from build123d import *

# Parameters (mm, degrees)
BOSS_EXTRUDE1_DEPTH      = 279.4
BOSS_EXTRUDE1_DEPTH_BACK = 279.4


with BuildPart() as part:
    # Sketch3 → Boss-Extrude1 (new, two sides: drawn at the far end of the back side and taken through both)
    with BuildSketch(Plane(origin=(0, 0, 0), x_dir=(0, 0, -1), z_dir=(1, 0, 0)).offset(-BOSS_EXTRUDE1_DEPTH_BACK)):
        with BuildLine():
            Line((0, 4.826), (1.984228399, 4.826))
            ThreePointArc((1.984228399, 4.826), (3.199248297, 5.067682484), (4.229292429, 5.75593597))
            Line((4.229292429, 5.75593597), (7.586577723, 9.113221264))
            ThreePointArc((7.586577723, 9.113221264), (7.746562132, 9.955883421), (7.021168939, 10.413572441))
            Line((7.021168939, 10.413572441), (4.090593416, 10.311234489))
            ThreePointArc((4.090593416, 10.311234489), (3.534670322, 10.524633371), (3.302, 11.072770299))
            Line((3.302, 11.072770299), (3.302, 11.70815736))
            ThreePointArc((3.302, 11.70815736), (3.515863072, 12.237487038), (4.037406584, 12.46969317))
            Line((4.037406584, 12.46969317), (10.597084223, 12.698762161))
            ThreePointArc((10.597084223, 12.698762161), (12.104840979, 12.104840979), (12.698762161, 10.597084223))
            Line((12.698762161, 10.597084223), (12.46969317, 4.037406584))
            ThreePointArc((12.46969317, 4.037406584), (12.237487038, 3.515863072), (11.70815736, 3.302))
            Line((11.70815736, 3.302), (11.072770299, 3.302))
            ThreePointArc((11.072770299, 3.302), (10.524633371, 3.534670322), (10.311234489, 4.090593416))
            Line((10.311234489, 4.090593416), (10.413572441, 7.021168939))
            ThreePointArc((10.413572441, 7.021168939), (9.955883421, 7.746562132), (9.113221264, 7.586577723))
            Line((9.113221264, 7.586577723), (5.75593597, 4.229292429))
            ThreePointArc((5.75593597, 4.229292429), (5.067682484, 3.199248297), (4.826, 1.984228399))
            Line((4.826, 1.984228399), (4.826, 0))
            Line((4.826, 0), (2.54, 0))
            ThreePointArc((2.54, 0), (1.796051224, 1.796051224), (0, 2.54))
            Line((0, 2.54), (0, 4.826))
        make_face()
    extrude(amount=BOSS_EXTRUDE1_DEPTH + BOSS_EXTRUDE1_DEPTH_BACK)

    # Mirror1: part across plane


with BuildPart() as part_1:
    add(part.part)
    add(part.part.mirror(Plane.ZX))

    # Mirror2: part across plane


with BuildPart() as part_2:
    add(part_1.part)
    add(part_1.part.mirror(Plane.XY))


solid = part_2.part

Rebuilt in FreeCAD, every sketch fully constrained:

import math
import FreeCAD as App
import Part
import Sketcher

V = App.Vector
Q = App.Units.Quantity

doc = App.newDocument("Part")
body = doc.addObject("PartDesign::Body", "Body")

# Sketch on YZ plane
sketch1 = body.newObject("Sketcher::SketchObject", "Sketch")
sketch1.AttachmentSupport = (doc.getObject("YZ_Plane"), [""])
sketch1.MapMode = "FlatFace"
sketch1.addGeometry(Part.LineSegment(V(4.8, -2, 0), V(4.8, 0, 0)), False)
sketch1.addGeometry(Part.LineSegment(V(4.8, 0, 0), V(2.5, 0, 0)), False)
sketch1.addGeometry(Part.ArcOfCircle(Part.Circle(V(0, 0, 0), V(0, 0, 1), 2.5), math.radians(-90), math.radians(0)), False)
sketch1.addGeometry(Part.LineSegment(V(0, -2.5, 0), V(0, -4.8, 0)), False)
sketch1.addGeometry(Part.LineSegment(V(0, -4.8, 0), V(2, -4.8, 0)), False)
sketch1.addGeometry(Part.ArcOfCircle(Part.Circle(V(2, -8, 0), V(0, 0, 1), 3.2), math.radians(45), math.radians(90)), False)
sketch1.addGeometry(Part.LineSegment(V(4.2, -5.8, 0), V(7.6, -9.1, 0)), False)
sketch1.addGeometry(Part.ArcOfCircle(Part.Circle(V(7, -9.7, 0), V(0, 0, 1), 0.8), math.radians(-92), math.radians(45)), False)
sketch1.addGeometry(Part.LineSegment(V(7, -10.4, 0), V(4.1, -10.3, 0)), False)
sketch1.addGeometry(Part.ArcOfCircle(Part.Circle(V(4.1, -11.1, 0), V(0, 0, 1), 0.8), math.radians(88), math.radians(180)), False)
sketch1.addGeometry(Part.LineSegment(V(3.3, -11.1, 0), V(3.3, -11.7, 0)), False)
sketch1.addGeometry(Part.ArcOfCircle(Part.Circle(V(4.1, -11.7, 0), V(0, 0, 1), 0.8), math.radians(180), math.radians(268)), False)
sketch1.addGeometry(Part.LineSegment(V(4, -12.5, 0), V(10.6, -12.7, 0)), False)
sketch1.addGeometry(Part.ArcOfCircle(Part.Circle(V(10.7, -10.7, 0), V(0, 0, 1), 2), math.radians(-92), math.radians(2)), False)
sketch1.addGeometry(Part.LineSegment(V(12.7, -10.6, 0), V(12.5, -4, 0)), False)
sketch1.addGeometry(Part.ArcOfCircle(Part.Circle(V(11.7, -4.1, 0), V(0, 0, 1), 0.8), math.radians(2), math.radians(90)), False)
sketch1.addGeometry(Part.LineSegment(V(11.7, -3.3, 0), V(11.1, -3.3, 0)), False)
sketch1.addGeometry(Part.ArcOfCircle(Part.Circle(V(11.1, -4.1, 0), V(0, 0, 1), 0.8), math.radians(90), math.radians(182)), False)
sketch1.addGeometry(Part.LineSegment(V(10.3, -4.1, 0), V(10.4, -7, 0)), False)
sketch1.addGeometry(Part.ArcOfCircle(Part.Circle(V(9.7, -7, 0), V(0, 0, 1), 0.8), math.radians(-135), math.radians(2)), False)
sketch1.addGeometry(Part.LineSegment(V(9.1, -7.6, 0), V(5.8, -4.2, 0)), False)
sketch1.addGeometry(Part.ArcOfCircle(Part.Circle(V(8, -2, 0), V(0, 0, 1), 3.2), math.radians(180), math.radians(225)), False)
sketch1.addConstraint(Sketcher.Constraint("Coincident", 0, 2, 1, 1))
sketch1.addConstraint(Sketcher.Constraint("Coincident", 1, 2, 2, 2))
sketch1.addConstraint(Sketcher.Constraint("Coincident", 2, 1, 3, 1))
sketch1.addConstraint(Sketcher.Constraint("Coincident", 3, 2, 4, 1))
sketch1.addConstraint(Sketcher.Constraint("Tangent", 4, 2, 5, 2))
sketch1.addConstraint(Sketcher.Constraint("Tangent", 5, 1, 6, 1))
sketch1.addConstraint(Sketcher.Constraint("Tangent", 6, 2, 7, 2))
sketch1.addConstraint(Sketcher.Constraint("Tangent", 7, 1, 8, 1))
sketch1.addConstraint(Sketcher.Constraint("Tangent", 8, 2, 9, 1))
sketch1.addConstraint(Sketcher.Constraint("Tangent", 9, 2, 10, 1))
sketch1.addConstraint(Sketcher.Constraint("Tangent", 10, 2, 11, 1))
sketch1.addConstraint(Sketcher.Constraint("Tangent", 11, 2, 12, 1))
sketch1.addConstraint(Sketcher.Constraint("Tangent", 12, 2, 13, 1))
sketch1.addConstraint(Sketcher.Constraint("Tangent", 13, 2, 14, 1))
sketch1.addConstraint(Sketcher.Constraint("Tangent", 14, 2, 15, 1))
sketch1.addConstraint(Sketcher.Constraint("Tangent", 15, 2, 16, 1))
sketch1.addConstraint(Sketcher.Constraint("Tangent", 16, 2, 17, 1))
sketch1.addConstraint(Sketcher.Constraint("Tangent", 17, 2, 18, 1))
sketch1.addConstraint(Sketcher.Constraint("Tangent", 18, 2, 19, 2))
sketch1.addConstraint(Sketcher.Constraint("Tangent", 19, 1, 20, 1))
sketch1.addConstraint(Sketcher.Constraint("Tangent", 20, 2, 21, 2))
sketch1.addConstraint(Sketcher.Constraint("Tangent", 21, 1, 0, 1))
sketch1.addConstraint(Sketcher.Constraint("Vertical", 0))
sketch1.addConstraint(Sketcher.Constraint("Horizontal", 1))
sketch1.addConstraint(Sketcher.Constraint("Vertical", 3))
sketch1.addConstraint(Sketcher.Constraint("Horizontal", 4))
sketch1.addConstraint(Sketcher.Constraint("Vertical", 10))
sketch1.addConstraint(Sketcher.Constraint("Horizontal", 16))
sketch1.addConstraint(Sketcher.Constraint("Coincident", 2, 3, -1, 1))
sketch1.addConstraint(Sketcher.Constraint("Equal", 7, 9))
sketch1.addConstraint(Sketcher.Constraint("Equal", 9, 11))
sketch1.addConstraint(Sketcher.Constraint("Equal", 11, 15))
sketch1.addConstraint(Sketcher.Constraint("Equal", 15, 17))
sketch1.addConstraint(Sketcher.Constraint("Equal", 17, 19))
sketch1.addConstraint(Sketcher.Constraint("Equal", 5, 21))
sketch1.addConstraint(Sketcher.Constraint("PointOnObject", 0, 2, -1))
sketch1.addConstraint(Sketcher.Constraint("PointOnObject", 2, 1, -2))
sketch1.addConstraint(Sketcher.Constraint("Parallel", 8, 12))
sketch1.addConstraint(Sketcher.Constraint("Parallel", 14, 18))
sketch1.addConstraint(Sketcher.Constraint("Parallel", 6, 20))
sketch1.addConstraint(Sketcher.Constraint("Equal", 4, 0))
sketch1.addConstraint(Sketcher.Constraint("Equal", 1, 3))
sketch1.addConstraint(Sketcher.Constraint("Equal", 16, 10))
sketch1.addConstraint(Sketcher.Constraint("Equal", 12, 14))
sketch1.addConstraint(Sketcher.Constraint("Equal", 8, 18))
sketch1.addConstraint(Sketcher.Constraint("Equal", 6, 20))
sketch1.addConstraint(Sketcher.Constraint("Radius", 2, Q("0.1 in")))
sketch1.addConstraint(Sketcher.Constraint("Radius", 7, Q("0.03 in")))
sketch1.addConstraint(Sketcher.Constraint("Radius", 13, Q("0.08 in")))
sketch1.addConstraint(Sketcher.Constraint("Angle", 6, Q("-45 deg")))
sketch1.addConstraint(Sketcher.Constraint("Angle", 8, Q("178 deg")))
sketch1.addConstraint(Sketcher.Constraint("Radius", 5, Q("0.125 in")))
sketch1.addConstraint(Sketcher.Constraint("DistanceX", 1, 2, 1, 1, Q("0.09 in")))
sketch1.addConstraint(Sketcher.Constraint("DistanceX", -1, 1, 9, 3, Q("0.16 in")))
sketch1.addConstraint(Sketcher.Constraint("DistanceX", -1, 1, 13, 3, Q("0.42 in")))
sketch1.addConstraint(Sketcher.Constraint("DistanceX", 4, 1, 4, 2, 1.984228))
sketch1.addConstraint(Sketcher.Constraint("DistanceY", 7, 3, 5, 1, 3.896101))
pad1 = body.newObject("PartDesign::Pad", "Pad")
pad1.Profile = sketch1
pad1.Type = "TwoLengths"
pad1.Length = Q("11 in")
pad1.Length2 = Q("11 in")
body2 = doc.addObject("PartDesign::Body", "Body001")
doc.recompute()

body2.BaseFeature = body
doc.recompute()

mirroring = doc.addObject("Part::Mirroring", "Mirroring")
mirroring.Source = body
mirroring.Base = V(0, 0, 0)
mirroring.Normal = V(0, 1, 0)
body3 = doc.addObject("PartDesign::Body", "Body002")
body3.BaseFeature = mirroring
boolean = body2.newObject("PartDesign::Boolean", "Boolean")
boolean.Type = "Fuse"
boolean.addObjects([body3])
doc.recompute()
body4 = doc.addObject("PartDesign::Body", "Body003")
doc.recompute()

body4.BaseFeature = body2
doc.recompute()

mirroring2 = doc.addObject("Part::Mirroring", "Mirroring001")
mirroring2.Source = body2
mirroring2.Base = V(0, 0, 0)
mirroring2.Normal = V(0, 0, 1)
body5 = doc.addObject("PartDesign::Body", "Body004")
body5.BaseFeature = mirroring2
boolean2 = body4.newObject("PartDesign::Boolean", "Boolean001")
boolean2.Type = "Fuse"
boolean2.addObjects([body5])
doc.recompute()
mirroring.Visibility = False
mirroring2.Visibility = False

doc.recompute()
